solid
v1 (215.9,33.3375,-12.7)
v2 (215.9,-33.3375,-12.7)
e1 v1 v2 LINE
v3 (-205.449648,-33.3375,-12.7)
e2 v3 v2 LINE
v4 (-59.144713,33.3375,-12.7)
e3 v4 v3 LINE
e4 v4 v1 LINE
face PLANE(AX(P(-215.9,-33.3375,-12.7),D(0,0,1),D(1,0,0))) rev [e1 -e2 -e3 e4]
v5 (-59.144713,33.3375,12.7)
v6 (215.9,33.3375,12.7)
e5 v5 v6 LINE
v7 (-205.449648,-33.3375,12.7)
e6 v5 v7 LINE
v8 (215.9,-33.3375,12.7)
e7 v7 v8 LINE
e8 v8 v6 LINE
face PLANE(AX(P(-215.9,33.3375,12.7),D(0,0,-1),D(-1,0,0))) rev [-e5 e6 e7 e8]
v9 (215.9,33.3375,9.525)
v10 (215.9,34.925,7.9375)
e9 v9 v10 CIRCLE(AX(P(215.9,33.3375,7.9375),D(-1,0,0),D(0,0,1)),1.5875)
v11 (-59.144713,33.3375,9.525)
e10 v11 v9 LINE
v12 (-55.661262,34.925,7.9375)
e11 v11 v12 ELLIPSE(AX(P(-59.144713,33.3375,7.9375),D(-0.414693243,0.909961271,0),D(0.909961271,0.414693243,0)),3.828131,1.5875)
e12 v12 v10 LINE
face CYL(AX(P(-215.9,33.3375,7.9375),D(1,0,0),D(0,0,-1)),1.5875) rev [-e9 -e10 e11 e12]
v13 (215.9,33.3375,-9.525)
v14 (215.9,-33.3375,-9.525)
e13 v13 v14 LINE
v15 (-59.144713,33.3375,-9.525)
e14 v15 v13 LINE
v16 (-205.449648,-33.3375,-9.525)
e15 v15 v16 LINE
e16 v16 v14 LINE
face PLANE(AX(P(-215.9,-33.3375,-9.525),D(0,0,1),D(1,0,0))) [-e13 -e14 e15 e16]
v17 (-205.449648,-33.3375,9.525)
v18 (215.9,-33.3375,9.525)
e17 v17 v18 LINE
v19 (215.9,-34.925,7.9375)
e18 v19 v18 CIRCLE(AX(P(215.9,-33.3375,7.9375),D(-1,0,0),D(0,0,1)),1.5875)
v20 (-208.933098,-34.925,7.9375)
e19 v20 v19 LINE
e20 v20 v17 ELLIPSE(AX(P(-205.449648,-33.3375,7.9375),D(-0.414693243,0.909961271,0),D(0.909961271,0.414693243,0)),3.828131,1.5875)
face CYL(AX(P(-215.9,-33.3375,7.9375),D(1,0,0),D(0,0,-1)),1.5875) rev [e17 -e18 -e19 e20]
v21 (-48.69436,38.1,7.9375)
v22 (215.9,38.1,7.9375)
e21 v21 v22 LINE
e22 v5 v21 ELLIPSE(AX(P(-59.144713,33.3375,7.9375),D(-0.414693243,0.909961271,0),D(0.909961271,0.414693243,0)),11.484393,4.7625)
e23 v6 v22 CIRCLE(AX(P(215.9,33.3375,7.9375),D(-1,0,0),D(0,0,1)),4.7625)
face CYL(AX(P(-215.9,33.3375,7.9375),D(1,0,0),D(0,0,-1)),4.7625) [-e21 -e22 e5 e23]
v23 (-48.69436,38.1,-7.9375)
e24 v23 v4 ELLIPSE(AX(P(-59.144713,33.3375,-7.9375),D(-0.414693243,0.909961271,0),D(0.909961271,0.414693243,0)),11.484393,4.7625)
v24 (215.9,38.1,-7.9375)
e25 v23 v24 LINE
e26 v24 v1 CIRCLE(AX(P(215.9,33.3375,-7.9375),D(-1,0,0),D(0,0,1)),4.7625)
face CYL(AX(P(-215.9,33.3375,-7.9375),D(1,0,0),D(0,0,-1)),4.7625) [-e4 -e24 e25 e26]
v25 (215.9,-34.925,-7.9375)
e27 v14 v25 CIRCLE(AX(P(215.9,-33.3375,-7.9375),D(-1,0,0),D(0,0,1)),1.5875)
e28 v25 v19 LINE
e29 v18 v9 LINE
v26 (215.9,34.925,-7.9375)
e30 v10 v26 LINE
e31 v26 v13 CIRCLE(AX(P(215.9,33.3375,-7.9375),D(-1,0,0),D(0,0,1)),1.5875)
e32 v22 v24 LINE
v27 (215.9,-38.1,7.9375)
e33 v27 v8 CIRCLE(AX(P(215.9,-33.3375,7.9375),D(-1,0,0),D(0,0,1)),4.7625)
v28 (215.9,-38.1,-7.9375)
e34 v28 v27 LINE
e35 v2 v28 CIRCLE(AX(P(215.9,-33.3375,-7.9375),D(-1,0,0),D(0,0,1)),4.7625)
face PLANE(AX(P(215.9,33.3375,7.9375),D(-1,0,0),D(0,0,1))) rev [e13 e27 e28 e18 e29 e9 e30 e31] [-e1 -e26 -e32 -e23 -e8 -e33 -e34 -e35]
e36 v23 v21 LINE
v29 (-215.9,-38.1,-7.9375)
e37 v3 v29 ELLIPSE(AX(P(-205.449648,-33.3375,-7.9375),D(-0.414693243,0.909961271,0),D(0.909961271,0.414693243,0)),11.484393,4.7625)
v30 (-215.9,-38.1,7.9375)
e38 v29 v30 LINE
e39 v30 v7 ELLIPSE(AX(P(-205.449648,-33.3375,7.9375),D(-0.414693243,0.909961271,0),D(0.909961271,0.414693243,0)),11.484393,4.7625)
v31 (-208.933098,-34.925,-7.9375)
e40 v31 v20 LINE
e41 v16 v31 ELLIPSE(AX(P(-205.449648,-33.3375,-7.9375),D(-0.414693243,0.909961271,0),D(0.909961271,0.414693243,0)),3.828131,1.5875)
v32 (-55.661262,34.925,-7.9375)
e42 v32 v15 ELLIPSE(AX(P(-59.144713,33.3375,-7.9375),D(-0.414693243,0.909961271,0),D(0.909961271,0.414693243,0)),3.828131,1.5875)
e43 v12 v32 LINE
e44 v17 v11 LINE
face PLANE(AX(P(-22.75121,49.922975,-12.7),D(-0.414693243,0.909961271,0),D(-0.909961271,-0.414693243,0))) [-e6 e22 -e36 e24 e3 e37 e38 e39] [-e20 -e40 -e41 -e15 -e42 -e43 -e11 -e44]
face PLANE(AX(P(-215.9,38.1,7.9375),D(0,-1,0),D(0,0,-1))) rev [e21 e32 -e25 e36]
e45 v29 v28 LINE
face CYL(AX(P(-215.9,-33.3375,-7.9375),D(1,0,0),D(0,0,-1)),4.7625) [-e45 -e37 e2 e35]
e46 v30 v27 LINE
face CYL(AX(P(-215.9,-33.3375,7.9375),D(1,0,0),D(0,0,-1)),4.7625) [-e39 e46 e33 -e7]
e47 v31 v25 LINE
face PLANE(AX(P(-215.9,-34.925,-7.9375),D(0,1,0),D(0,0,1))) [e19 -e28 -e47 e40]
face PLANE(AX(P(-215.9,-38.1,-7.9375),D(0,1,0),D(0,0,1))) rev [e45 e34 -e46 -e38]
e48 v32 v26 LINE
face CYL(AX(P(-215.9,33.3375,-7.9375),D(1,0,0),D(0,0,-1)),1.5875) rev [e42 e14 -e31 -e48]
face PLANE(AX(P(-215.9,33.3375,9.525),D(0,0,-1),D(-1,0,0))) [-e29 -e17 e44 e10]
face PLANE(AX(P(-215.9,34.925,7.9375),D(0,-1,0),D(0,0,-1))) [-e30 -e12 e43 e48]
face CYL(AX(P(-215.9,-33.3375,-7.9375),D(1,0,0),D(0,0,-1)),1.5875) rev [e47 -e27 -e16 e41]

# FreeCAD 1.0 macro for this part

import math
import FreeCAD as App
import Part
import Sketcher
Q = App.Units.Quantity

doc = App.newDocument("Part")
body = doc.addObject("PartDesign::Body", "Body")

sketch1 = body.newObject("Sketcher::SketchObject", "Sketch")
sketch1.AttachmentSupport = (doc.getObject("YZ_Plane"), [""])
sketch1.MapMode = "FlatFace"
sketch1.AttachmentOffset = App.Placement(App.Vector(0, 0, 8.5 * 25.4), App.Rotation())
sketch1.addGeometry(Part.LineSegment(App.Vector(-38.1, -7.9375, 0), App.Vector(-38.1, 7.9375, 0)), False)
sketch1.addGeometry(Part.ArcOfCircle(Part.Circle(App.Vector(-33.3375, 7.9375, 0), App.Vector(0, 0, 1), 4.7625), math.radians(90), math.radians(180)), False)
sketch1.addGeometry(Part.LineSegment(App.Vector(-33.3375, 12.7, 0), App.Vector(33.3375, 12.7, 0)), False)
sketch1.addGeometry(Part.ArcOfCircle(Part.Circle(App.Vector(33.3375, 7.9375, 0), App.Vector(0, 0, 1), 4.7625), math.radians(0), math.radians(90)), False)
sketch1.addGeometry(Part.LineSegment(App.Vector(38.1, 7.9375, 0), App.Vector(38.1, -7.9375, 0)), False)
sketch1.addGeometry(Part.ArcOfCircle(Part.Circle(App.Vector(33.3375, -7.9375, 0), App.Vector(0, 0, 1), 4.7625), math.radians(-90), math.radians(0)), False)
sketch1.addGeometry(Part.LineSegment(App.Vector(33.3375, -12.7, 0), App.Vector(-33.3375, -12.7, 0)), False)
sketch1.addGeometry(Part.ArcOfCircle(Part.Circle(App.Vector(-33.3375, -7.9375, 0), App.Vector(0, 0, 1), 4.7625), math.radians(-180), math.radians(-90)), False)
sketch1.addGeometry(Part.LineSegment(App.Vector(-34.925, 7.9375, 0), App.Vector(-34.925, -7.9375, 0)), False)
sketch1.addGeometry(Part.ArcOfCircle(Part.Circle(App.Vector(-33.3375, -7.9375, 0), App.Vector(0, 0, 1), 1.5875), math.radians(180), math.radians(270)), False)
sketch1.addGeometry(Part.LineSegment(App.Vector(-33.3375, -9.525, 0), App.Vector(33.3375, -9.525, 0)), False)
sketch1.addGeometry(Part.ArcOfCircle(Part.Circle(App.Vector(33.3375, -7.9375, 0), App.Vector(0, 0, 1), 1.5875), math.radians(-90), math.radians(0)), False)
sketch1.addGeometry(Part.LineSegment(App.Vector(34.925, -7.9375, 0), App.Vector(34.925, 7.9375, 0)), False)
sketch1.addGeometry(Part.ArcOfCircle(Part.Circle(App.Vector(33.3375, 7.9375, 0), App.Vector(0, 0, 1), 1.5875), math.radians(0), math.radians(90)), False)
sketch1.addGeometry(Part.LineSegment(App.Vector(33.3375, 9.525, 0), App.Vector(-33.3375, 9.525, 0)), False)
sketch1.addGeometry(Part.ArcOfCircle(Part.Circle(App.Vector(-33.3375, 7.9375, 0), App.Vector(0, 0, 1), 1.5875), math.radians(90), math.radians(180)), False)
sketch1.addConstraint(Sketcher.Constraint("Tangent", 0, 2, 1, 2))
sketch1.addConstraint(Sketcher.Constraint("Tangent", 1, 1, 2, 1))
sketch1.addConstraint(Sketcher.Constraint("Tangent", 2, 2, 3, 2))
sketch1.addConstraint(Sketcher.Constraint("Tangent", 3, 1, 4, 1))
sketch1.addConstraint(Sketcher.Constraint("Tangent", 4, 2, 5, 2))
sketch1.addConstraint(Sketcher.Constraint("Tangent", 5, 1, 6, 1))
sketch1.addConstraint(Sketcher.Constraint("Tangent", 6, 2, 7, 2))
sketch1.addConstraint(Sketcher.Constraint("Tangent", 7, 1, 0, 1))
sketch1.addConstraint(Sketcher.Constraint("Tangent", 8, 2, 9, 1))
sketch1.addConstraint(Sketcher.Constraint("Tangent", 9, 2, 10, 1))
sketch1.addConstraint(Sketcher.Constraint("Tangent", 10, 2, 11, 1))
sketch1.addConstraint(Sketcher.Constraint("Tangent", 11, 2, 12, 1))
sketch1.addConstraint(Sketcher.Constraint("Tangent", 12, 2, 13, 1))
sketch1.addConstraint(Sketcher.Constraint("Tangent", 13, 2, 14, 1))
sketch1.addConstraint(Sketcher.Constraint("Tangent", 14, 2, 15, 1))
sketch1.addConstraint(Sketcher.Constraint("Tangent", 15, 2, 8, 1))
sketch1.addConstraint(Sketcher.Constraint("Vertical", 0))
sketch1.addConstraint(Sketcher.Constraint("Horizontal", 2))
sketch1.addConstraint(Sketcher.Constraint("Vertical", 4))
sketch1.addConstraint(Sketcher.Constraint("Horizontal", 6))
sketch1.addConstraint(Sketcher.Constraint("Vertical", 8))
sketch1.addConstraint(Sketcher.Constraint("Horizontal", 10))
sketch1.addConstraint(Sketcher.Constraint("Vertical", 12))
sketch1.addConstraint(Sketcher.Constraint("Horizontal", 14))
sketch1.addConstraint(Sketcher.Constraint("Coincident", 9, 3, 7, 3))
sketch1.addConstraint(Sketcher.Constraint("Coincident", 11, 3, 5, 3))
sketch1.addConstraint(Sketcher.Constraint("Coincident", 13, 3, 3, 3))
sketch1.addConstraint(Sketcher.Constraint("Equal", 1, 3))
sketch1.addConstraint(Sketcher.Constraint("Equal", 3, 5))
sketch1.addConstraint(Sketcher.Constraint("Equal", 5, 7))
sketch1.addConstraint(Sketcher.Constraint("Equal", 13, 15))
sketch1.addConstraint(Sketcher.Constraint("Symmetric", 1, 3, 5, 3, -1, 1))
sketch1.addConstraint(Sketcher.Constraint("Radius", 1, Q("0.1875 in")))
sketch1.addConstraint(Sketcher.Constraint("Radius", 9, Q("0.0625 in")))
sketch1.addConstraint(Sketcher.Constraint("DistanceX", 0, 2, -1, 1, Q("1.5 in")))
sketch1.addConstraint(Sketcher.Constraint("DistanceY", -1, 1, 1, 1, Q("0.5 in")))
pad1 = body.newObject("PartDesign::Pad", "Pad")
pad1.Profile = sketch1
pad1.Length = Q("17 in")
pad1.Reversed = True

sketch2 = body.newObject("Sketcher::SketchObject", "Sketch001")
sketch2.AttachmentSupport = (doc.getObject("XY_Plane"), [""])
sketch2.MapMode = "FlatFace"
sketch2.AttachmentOffset = App.Placement(App.Vector(0, 0, 0.5 * 25.4), App.Rotation())
sketch2.addGeometry(Part.LineSegment(App.Vector(-215.9, 38.1, 0), App.Vector(-215.9, -38.1, 0)), False)
sketch2.addGeometry(Part.LineSegment(App.Vector(-215.9, -38.1, 0), App.Vector(-48.69436, 38.1, 0)), False)
sketch2.addGeometry(Part.LineSegment(App.Vector(-48.69436, 38.1, 0), App.Vector(-215.9, 38.1, 0)), False)
sketch2.addConstraint(Sketcher.Constraint("Coincident", 0, 2, 1, 1))
sketch2.addConstraint(Sketcher.Constraint("Coincident", 1, 2, 2, 1))
sketch2.addConstraint(Sketcher.Constraint("Coincident", 2, 2, 0, 1))
sketch2.addConstraint(Sketcher.Constraint("Vertical", 0))
sketch2.addConstraint(Sketcher.Constraint("Horizontal", 2))
sketch2.addConstraint(Sketcher.Constraint("DistanceY", 0, 2, 0, 1, Q("3 in")))
sketch2.addConstraint(Sketcher.Constraint("DistanceX", 0, 2, -1, 1, Q("8.5 in")))
sketch2.addConstraint(Sketcher.Constraint("DistanceY", 0, 2, -1, 1, Q("1.5 in")))
sketch2.addConstraint(Sketcher.Constraint("Angle", 1, Q("24.5 deg")))
pocket1 = body.newObject("PartDesign::Pocket", "Pocket")
pocket1.Profile = sketch2
pocket1.Type = "ThroughAll"

doc.recompute()
